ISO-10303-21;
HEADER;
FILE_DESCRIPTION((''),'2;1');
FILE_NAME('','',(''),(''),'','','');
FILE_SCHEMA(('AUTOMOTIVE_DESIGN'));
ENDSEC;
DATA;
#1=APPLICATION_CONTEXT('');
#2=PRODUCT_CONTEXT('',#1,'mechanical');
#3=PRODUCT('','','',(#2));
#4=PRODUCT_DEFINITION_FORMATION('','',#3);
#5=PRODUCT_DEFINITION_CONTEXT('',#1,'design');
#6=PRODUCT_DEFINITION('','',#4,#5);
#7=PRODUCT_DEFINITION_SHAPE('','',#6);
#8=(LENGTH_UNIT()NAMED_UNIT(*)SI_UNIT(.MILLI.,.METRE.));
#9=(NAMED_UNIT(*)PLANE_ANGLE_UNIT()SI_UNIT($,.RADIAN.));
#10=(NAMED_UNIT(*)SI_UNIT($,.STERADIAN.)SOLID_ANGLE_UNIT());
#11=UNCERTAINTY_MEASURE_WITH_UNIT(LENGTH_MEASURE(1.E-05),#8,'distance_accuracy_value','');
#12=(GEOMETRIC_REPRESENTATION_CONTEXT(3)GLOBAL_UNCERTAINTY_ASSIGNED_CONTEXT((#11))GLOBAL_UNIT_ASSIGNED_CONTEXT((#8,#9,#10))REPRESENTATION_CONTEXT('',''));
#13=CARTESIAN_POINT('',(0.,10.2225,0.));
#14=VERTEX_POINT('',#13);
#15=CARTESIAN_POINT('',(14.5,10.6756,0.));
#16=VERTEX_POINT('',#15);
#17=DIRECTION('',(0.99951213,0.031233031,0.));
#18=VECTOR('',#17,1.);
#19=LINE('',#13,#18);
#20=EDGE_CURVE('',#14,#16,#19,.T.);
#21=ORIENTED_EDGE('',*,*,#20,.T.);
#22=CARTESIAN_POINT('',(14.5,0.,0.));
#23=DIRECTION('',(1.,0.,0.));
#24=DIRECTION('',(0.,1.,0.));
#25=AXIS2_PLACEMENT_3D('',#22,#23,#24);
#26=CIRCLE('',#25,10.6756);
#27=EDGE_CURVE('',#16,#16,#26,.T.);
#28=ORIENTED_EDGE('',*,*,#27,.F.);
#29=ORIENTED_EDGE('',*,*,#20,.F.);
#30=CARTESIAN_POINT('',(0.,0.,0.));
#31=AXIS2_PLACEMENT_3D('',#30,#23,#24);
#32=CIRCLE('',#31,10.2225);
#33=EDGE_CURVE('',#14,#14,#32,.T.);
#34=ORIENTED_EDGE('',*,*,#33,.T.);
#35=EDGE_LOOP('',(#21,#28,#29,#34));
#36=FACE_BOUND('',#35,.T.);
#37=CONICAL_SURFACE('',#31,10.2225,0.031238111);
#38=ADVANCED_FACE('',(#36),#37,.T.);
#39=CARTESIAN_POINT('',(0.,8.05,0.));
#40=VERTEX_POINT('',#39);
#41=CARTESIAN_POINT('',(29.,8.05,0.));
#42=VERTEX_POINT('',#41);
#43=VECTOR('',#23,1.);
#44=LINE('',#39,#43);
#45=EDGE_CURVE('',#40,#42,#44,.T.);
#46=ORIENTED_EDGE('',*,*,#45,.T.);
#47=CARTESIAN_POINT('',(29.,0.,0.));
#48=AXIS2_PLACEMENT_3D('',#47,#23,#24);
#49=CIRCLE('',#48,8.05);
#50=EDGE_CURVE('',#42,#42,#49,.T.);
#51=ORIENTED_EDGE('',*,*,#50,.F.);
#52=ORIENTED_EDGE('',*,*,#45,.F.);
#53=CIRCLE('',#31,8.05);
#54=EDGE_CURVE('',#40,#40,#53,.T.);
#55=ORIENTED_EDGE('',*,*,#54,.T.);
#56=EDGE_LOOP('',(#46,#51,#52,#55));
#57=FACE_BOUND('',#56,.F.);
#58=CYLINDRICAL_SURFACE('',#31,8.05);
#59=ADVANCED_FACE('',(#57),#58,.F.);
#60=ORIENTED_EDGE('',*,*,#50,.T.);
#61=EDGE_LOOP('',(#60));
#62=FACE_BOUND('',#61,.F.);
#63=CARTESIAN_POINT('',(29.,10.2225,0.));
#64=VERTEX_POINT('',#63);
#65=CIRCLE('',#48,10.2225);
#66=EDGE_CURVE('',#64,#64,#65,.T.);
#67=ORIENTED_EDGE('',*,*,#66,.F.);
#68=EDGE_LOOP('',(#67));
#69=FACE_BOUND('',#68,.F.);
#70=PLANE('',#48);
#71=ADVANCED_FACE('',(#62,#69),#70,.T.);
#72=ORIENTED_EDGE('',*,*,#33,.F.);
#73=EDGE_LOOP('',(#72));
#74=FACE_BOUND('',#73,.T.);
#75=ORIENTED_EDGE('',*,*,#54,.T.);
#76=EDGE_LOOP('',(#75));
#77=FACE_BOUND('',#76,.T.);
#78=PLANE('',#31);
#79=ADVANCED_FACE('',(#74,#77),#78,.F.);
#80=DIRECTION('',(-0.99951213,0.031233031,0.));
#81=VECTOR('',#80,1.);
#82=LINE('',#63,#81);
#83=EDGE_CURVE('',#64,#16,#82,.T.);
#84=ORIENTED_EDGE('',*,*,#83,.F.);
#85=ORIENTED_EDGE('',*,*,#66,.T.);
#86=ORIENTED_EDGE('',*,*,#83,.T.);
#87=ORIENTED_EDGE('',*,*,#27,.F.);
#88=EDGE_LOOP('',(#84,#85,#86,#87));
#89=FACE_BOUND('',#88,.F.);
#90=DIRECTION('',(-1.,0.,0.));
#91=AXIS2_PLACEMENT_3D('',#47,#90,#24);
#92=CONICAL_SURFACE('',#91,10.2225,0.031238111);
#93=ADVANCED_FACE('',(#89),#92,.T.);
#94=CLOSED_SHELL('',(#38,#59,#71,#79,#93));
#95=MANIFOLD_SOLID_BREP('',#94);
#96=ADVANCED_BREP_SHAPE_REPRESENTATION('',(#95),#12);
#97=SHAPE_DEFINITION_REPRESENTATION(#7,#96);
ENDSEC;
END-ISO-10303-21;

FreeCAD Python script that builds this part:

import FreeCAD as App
import Part
import Sketcher
Q = App.Units.Quantity


def add_polygon(sketch, points):
    """Adds a closed chain of lines whose ends are joined by coincident constraints."""
    first, n = sketch.GeometryCount, len(points)
    for a, b in zip(points, points[1:] + points[:1]):
        sketch.addGeometry(Part.LineSegment(App.Vector(*a, 0), App.Vector(*b, 0)), False)
    for i in range(n):
        sketch.addConstraint(Sketcher.Constraint("Coincident", first + i, 2, first + (i + 1) % n, 1))

doc = App.newDocument("Part")
body = doc.addObject("PartDesign::Body", "Body")

sketch1 = body.newObject("Sketcher::SketchObject", "Sketch")
sketch1.AttachmentSupport = (doc.getObject("XY_Plane"), [""])
sketch1.MapMode = "FlatFace"
add_polygon(sketch1, [(0, 8.05), (29, 8.05), (29, 10.2225), (14.5, 10.6756), (0, 10.2225)])
sketch1.addConstraint([
    Sketcher.Constraint("Horizontal", 0),
    Sketcher.Constraint("Vertical", 1),
    Sketcher.Constraint("Vertical", 4),
    Sketcher.Constraint("PointOnObject", 3, 2, -2),
    Sketcher.Constraint("Horizontal", 1, 2, 3, 2),
    Sketcher.Constraint("Equal", 2, 3),
    Sketcher.Constraint("DistanceX", 0, 1, 0, 2, 29.0),
    Sketcher.Constraint("Angle", 2, Q("178.2102 deg")),
    Sketcher.Constraint("DistanceY", -1, 1, 0, 2, 8.05),
    Sketcher.Constraint("DistanceY", 1, 1, 1, 2, 2.1725),
])
revolution = body.newObject("PartDesign::Revolution", "Revolution")
revolution.Profile = sketch1
revolution.ReferenceAxis = (sketch1, ["H_Axis"])
revolution.Angle = 360

doc.recompute()
